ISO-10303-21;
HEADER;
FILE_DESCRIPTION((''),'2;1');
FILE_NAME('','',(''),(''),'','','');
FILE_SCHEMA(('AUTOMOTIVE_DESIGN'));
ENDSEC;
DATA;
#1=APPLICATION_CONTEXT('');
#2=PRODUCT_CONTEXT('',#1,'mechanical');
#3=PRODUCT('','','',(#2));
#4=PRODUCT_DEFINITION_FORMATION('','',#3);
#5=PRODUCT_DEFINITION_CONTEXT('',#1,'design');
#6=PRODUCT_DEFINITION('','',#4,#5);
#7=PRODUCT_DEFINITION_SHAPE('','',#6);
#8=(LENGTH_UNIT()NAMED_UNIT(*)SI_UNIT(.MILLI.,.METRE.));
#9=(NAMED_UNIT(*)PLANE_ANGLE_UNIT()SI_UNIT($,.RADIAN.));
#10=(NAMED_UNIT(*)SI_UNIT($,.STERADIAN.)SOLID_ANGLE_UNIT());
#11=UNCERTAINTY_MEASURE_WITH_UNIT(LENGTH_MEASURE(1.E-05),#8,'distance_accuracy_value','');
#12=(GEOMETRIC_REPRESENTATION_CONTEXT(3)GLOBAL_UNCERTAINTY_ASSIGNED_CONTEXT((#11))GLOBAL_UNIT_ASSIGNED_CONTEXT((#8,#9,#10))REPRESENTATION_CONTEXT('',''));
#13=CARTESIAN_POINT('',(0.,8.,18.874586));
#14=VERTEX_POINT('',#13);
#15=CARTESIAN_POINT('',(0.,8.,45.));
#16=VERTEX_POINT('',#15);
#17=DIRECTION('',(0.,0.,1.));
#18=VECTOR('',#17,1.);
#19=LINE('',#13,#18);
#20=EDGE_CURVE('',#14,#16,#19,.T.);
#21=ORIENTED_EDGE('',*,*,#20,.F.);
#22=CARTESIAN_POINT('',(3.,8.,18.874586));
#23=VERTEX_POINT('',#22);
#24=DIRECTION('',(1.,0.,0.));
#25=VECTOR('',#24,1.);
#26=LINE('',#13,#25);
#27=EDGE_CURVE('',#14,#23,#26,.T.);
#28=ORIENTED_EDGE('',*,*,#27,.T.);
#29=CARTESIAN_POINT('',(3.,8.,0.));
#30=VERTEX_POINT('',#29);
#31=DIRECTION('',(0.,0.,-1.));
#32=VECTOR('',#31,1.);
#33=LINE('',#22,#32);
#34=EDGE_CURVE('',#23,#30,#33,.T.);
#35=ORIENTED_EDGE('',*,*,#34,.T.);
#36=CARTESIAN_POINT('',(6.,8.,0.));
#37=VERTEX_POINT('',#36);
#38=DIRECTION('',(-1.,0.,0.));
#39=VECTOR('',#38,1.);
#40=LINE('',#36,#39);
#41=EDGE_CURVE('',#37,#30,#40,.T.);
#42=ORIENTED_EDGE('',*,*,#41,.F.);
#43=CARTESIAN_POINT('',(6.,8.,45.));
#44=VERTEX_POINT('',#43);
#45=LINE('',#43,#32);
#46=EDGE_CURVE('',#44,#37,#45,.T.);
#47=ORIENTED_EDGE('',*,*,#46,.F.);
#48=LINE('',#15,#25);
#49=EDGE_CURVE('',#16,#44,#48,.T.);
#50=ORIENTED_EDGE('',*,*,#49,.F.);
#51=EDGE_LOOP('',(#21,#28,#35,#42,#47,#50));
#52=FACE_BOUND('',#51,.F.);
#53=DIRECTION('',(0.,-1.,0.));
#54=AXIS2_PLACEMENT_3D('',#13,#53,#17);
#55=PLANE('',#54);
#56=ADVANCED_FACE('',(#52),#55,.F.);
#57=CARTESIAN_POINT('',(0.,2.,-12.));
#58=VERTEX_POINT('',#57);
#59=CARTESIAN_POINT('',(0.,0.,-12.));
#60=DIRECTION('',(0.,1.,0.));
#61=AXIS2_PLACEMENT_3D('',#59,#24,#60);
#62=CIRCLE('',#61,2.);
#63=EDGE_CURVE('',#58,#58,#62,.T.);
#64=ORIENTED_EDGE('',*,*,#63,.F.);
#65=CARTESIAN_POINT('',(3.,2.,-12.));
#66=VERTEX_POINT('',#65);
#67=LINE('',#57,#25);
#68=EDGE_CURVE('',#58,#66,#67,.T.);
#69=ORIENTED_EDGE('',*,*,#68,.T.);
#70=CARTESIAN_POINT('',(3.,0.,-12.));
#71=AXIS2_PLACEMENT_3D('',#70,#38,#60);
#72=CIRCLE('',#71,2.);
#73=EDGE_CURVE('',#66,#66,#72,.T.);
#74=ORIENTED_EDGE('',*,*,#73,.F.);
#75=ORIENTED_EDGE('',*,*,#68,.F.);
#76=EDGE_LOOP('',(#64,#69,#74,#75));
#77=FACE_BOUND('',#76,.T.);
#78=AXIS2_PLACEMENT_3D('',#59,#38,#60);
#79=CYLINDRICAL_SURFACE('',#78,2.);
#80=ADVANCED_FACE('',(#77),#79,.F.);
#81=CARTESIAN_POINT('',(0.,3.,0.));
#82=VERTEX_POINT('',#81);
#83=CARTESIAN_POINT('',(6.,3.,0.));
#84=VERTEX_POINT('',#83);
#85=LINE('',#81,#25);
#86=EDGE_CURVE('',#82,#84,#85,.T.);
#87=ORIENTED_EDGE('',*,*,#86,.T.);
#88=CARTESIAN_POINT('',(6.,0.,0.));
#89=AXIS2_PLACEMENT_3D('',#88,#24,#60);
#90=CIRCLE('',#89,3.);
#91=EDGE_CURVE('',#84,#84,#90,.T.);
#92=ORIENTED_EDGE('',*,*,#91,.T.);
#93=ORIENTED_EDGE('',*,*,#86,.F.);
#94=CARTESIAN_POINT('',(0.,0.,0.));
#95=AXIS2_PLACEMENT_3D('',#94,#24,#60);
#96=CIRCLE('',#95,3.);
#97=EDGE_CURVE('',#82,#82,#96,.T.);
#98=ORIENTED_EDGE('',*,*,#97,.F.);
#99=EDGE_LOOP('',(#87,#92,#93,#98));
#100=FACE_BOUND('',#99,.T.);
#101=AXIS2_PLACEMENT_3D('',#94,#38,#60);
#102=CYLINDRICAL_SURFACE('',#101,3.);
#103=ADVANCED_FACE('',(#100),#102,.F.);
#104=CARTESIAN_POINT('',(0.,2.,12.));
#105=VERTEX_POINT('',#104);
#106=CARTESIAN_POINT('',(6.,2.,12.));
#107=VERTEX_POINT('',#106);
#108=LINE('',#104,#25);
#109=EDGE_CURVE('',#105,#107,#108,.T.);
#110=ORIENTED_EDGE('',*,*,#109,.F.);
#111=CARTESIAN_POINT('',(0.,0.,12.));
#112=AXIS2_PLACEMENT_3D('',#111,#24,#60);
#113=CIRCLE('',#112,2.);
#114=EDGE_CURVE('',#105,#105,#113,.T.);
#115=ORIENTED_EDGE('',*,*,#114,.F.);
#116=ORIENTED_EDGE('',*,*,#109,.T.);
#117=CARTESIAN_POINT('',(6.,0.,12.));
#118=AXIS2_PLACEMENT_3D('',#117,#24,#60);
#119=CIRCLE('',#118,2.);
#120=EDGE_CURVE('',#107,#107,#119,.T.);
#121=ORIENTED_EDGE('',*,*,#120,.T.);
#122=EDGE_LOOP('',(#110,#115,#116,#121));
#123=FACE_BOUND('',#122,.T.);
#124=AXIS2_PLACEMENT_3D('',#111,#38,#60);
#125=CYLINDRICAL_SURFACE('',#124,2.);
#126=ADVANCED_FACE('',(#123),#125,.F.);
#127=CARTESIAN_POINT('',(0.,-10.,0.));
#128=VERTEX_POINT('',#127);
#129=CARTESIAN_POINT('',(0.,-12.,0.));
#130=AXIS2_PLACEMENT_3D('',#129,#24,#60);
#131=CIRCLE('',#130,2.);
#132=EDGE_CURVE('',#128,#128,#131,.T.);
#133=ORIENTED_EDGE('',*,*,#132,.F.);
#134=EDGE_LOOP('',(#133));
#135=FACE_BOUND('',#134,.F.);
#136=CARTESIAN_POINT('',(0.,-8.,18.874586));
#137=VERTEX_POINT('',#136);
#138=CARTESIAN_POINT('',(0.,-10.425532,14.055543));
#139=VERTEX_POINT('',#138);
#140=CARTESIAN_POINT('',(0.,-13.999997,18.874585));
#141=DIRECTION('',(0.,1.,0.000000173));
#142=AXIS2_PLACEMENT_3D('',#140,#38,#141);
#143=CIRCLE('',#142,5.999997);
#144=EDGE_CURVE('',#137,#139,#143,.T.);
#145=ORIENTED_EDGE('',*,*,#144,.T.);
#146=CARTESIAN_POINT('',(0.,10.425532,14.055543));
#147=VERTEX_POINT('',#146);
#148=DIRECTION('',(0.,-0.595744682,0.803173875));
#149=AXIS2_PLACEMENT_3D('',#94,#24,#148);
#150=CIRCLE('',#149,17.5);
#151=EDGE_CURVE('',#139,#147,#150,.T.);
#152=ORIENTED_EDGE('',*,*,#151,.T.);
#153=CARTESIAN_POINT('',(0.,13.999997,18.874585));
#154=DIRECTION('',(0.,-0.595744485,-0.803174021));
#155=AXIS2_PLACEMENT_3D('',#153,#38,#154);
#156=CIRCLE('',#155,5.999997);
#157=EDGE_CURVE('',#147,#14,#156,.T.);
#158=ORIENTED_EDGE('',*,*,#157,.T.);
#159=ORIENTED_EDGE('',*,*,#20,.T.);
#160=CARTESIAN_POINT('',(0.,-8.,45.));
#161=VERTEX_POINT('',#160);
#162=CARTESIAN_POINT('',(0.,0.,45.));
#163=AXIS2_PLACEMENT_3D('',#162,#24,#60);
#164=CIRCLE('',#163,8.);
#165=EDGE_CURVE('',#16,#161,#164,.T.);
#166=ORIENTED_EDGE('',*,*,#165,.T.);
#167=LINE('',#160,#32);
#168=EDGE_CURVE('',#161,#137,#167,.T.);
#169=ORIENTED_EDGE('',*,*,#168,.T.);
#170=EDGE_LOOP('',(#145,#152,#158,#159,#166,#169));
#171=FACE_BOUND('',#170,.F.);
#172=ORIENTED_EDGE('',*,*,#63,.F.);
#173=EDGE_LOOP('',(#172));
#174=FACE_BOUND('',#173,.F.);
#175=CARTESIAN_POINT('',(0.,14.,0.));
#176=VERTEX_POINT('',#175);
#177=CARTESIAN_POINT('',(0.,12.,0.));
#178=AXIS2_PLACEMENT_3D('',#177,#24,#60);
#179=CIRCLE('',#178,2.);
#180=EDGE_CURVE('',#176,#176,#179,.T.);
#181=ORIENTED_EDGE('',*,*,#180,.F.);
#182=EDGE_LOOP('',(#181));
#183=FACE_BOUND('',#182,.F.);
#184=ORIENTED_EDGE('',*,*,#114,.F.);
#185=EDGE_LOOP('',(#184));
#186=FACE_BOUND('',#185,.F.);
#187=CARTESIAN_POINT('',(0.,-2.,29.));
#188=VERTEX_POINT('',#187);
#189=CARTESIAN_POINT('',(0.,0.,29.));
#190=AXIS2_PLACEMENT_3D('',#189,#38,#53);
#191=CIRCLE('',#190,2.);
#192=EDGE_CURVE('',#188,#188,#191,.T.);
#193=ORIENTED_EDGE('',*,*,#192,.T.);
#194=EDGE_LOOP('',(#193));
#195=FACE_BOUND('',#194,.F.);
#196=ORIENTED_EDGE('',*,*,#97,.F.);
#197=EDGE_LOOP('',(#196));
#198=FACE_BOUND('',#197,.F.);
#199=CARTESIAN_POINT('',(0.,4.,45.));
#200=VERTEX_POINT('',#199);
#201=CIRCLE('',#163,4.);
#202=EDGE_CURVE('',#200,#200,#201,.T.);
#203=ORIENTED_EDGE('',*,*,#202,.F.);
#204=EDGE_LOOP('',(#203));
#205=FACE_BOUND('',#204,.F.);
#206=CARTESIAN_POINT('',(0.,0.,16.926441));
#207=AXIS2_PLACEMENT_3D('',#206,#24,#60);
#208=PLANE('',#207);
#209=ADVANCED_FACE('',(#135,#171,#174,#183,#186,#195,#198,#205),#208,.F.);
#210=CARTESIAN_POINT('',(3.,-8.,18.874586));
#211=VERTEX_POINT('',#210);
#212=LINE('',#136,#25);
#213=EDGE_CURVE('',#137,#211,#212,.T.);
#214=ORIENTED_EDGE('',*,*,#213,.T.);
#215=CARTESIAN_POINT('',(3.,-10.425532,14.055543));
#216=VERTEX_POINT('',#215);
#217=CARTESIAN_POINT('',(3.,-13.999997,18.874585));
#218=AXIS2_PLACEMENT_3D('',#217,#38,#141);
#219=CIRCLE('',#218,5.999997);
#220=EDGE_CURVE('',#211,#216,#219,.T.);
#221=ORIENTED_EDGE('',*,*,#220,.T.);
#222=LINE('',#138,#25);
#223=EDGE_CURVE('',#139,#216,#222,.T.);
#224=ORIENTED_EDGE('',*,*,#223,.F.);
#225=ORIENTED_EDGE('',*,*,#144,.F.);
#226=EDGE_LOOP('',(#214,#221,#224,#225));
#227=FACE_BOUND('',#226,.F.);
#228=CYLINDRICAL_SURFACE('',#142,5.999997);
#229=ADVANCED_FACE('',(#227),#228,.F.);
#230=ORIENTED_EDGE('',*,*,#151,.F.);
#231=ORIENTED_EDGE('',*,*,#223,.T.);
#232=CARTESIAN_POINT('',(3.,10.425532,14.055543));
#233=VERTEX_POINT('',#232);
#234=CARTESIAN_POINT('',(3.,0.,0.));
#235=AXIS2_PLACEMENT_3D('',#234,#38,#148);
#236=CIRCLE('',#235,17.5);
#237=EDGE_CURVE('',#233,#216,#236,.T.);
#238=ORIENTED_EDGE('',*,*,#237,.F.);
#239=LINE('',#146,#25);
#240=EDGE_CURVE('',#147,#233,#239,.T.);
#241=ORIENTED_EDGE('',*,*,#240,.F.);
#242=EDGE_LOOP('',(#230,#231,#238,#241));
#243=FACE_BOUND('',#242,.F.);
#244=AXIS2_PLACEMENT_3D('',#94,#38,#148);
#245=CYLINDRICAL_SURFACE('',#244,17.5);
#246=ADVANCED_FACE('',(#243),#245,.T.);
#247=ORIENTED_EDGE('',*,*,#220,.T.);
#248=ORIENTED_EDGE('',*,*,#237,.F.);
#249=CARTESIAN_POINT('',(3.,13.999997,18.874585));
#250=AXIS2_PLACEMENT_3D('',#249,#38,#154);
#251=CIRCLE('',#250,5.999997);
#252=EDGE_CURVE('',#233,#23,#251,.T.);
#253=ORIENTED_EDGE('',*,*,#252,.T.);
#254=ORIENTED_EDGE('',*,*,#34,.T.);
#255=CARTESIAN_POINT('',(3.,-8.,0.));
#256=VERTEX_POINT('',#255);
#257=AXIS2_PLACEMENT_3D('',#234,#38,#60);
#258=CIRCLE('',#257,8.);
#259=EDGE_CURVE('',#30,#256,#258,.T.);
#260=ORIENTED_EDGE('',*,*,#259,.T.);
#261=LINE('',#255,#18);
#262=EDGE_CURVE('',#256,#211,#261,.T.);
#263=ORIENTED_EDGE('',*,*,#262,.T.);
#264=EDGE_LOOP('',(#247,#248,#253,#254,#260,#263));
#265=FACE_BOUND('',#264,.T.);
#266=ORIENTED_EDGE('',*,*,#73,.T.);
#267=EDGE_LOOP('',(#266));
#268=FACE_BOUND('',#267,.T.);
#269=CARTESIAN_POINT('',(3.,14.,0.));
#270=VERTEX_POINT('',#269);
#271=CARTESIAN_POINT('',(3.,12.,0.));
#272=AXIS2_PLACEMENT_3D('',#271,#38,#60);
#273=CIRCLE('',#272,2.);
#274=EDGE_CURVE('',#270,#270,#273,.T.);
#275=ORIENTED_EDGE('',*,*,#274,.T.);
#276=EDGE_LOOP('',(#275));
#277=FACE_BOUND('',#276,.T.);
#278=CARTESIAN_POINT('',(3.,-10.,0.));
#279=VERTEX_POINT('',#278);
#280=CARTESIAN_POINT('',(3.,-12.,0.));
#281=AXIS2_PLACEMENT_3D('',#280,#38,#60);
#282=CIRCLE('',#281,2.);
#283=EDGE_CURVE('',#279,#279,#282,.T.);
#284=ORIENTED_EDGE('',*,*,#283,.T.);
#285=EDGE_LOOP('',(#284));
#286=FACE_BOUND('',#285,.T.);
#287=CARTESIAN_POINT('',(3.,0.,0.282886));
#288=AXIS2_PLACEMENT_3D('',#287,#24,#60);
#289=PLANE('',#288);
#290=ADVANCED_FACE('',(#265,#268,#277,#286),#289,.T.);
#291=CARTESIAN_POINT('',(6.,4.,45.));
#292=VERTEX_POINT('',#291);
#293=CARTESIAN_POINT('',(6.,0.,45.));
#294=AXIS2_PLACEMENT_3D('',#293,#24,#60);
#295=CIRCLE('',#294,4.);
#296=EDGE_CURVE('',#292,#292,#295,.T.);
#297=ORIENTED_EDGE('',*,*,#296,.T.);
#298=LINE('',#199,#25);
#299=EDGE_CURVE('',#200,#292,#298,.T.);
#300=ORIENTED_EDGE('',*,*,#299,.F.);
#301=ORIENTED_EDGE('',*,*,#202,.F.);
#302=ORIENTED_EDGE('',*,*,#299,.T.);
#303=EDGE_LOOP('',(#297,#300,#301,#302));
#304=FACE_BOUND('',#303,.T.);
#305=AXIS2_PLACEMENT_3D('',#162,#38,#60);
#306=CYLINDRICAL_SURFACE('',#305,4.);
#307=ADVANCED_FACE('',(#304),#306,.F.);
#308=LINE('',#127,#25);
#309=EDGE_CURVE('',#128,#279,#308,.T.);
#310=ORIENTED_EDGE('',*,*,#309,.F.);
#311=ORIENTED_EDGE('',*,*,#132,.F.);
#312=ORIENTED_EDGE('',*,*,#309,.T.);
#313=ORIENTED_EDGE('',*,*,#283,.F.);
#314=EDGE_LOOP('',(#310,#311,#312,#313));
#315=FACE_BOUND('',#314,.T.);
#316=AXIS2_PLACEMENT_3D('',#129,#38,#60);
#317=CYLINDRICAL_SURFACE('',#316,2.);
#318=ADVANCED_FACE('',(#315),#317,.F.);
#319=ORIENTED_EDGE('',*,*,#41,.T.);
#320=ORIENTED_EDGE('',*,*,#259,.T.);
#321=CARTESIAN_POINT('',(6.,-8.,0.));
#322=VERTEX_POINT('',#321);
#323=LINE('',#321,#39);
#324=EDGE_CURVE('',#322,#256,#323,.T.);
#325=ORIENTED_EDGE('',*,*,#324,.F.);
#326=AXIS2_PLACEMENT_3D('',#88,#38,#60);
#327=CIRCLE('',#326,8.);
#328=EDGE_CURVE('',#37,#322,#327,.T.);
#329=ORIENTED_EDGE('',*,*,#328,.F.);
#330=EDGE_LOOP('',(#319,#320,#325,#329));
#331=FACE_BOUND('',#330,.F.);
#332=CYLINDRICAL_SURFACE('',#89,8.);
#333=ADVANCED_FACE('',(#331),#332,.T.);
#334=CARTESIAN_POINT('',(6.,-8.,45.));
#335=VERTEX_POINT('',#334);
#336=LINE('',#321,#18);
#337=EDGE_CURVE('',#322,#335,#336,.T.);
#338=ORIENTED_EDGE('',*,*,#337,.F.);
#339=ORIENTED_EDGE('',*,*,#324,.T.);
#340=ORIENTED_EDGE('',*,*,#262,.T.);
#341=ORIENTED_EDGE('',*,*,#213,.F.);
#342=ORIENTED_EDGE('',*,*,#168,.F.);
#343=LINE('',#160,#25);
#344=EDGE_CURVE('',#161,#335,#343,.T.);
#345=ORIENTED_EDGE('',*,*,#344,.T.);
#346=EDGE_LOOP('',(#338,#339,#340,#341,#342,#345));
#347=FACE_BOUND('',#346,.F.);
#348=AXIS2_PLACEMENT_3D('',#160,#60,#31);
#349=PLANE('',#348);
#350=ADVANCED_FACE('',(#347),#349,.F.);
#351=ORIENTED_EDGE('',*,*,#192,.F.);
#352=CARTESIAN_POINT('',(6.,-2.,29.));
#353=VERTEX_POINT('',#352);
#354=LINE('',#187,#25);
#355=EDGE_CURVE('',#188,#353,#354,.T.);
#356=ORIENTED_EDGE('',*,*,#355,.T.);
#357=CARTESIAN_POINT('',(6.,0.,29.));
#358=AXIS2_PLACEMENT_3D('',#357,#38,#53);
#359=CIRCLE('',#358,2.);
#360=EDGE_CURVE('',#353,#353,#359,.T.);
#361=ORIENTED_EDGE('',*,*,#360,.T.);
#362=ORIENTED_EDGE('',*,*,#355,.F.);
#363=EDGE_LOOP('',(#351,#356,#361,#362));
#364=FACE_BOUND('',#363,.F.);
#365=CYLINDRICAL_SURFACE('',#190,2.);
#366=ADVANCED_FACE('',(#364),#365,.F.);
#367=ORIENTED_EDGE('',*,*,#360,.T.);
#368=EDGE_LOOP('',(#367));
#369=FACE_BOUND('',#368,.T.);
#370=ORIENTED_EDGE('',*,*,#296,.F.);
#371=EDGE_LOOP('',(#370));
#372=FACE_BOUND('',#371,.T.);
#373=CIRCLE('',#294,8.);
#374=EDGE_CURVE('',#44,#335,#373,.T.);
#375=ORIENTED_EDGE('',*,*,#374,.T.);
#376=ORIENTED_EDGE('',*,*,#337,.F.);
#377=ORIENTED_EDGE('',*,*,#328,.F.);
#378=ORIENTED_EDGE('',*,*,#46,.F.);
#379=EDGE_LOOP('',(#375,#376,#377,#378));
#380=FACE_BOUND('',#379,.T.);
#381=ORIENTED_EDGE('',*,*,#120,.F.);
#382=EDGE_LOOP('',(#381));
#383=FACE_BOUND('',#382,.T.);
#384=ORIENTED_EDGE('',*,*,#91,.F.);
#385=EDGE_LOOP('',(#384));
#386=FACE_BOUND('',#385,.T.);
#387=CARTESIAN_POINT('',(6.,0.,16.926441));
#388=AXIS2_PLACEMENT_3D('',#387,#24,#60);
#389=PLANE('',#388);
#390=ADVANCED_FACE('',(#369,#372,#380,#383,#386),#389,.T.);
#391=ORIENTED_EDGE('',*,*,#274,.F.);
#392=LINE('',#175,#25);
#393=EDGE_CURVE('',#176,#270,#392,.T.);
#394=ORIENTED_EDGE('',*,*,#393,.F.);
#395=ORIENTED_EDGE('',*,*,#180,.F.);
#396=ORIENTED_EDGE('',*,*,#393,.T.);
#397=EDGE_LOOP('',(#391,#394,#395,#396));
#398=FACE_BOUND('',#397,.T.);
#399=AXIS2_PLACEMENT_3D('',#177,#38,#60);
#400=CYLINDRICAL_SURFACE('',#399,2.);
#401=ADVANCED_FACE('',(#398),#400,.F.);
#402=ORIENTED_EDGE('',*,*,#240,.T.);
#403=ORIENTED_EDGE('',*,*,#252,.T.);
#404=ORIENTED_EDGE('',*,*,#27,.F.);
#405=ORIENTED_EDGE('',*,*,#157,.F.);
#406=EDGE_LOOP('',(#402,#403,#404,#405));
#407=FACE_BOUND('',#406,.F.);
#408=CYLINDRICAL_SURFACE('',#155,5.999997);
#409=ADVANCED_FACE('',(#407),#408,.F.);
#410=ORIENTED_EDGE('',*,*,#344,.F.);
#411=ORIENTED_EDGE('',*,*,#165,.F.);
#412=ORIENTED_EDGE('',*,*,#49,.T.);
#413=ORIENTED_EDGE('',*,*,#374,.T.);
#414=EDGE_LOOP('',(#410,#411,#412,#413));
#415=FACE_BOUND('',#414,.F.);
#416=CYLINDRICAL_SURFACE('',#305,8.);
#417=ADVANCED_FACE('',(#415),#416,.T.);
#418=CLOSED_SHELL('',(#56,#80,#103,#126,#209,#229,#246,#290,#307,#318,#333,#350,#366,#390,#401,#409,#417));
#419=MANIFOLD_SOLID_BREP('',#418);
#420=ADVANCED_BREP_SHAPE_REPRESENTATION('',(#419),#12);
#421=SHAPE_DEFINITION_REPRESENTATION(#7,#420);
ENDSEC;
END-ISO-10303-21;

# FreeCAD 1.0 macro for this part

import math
import FreeCAD as App
import Part
import Sketcher
from FreeCAD import Vector
Q = App.Units.Quantity

doc = App.newDocument("Part")
params = doc.addObject("Spreadsheet::Sheet", "Params")
for row, (alias, value) in enumerate([
    ("sketch1_diameter", "4 mm"),
    ("sketch1_diameter2", "6 mm"),
    ("sketch1_diameter3", "8 mm"),
    ("sketch1_radius", "8 mm"),
    ("sketch1_radius2", "17.5 mm"),
    ("pad1_length", "6 mm"),
    ("sketch2_diameter", "4 mm"),
    ("sketch3_radius", "8 mm"),
    ("sketch3_radius2", "20.5 mm"),
    ("pocket2_length", "3 mm"),
], start=1):
    params.set(f"A{row}", alias)
    params.set(f"B{row}", "=" + value)
    params.setAlias(f"B{row}", alias)

body = doc.addObject("PartDesign::Body", "Body")

# Sketch on YZ plane
sketch1 = body.newObject("Sketcher::SketchObject", "Sketch")
sketch1.AttachmentSupport = (doc.getObject("YZ_Plane"), [""])
sketch1.MapMode = "FlatFace"
sketch1.addGeometry(Part.ArcOfCircle(Part.Circle(Vector(-14, 18.9, 0), Vector(0, 0, 1), 6), math.radians(-53), math.radians(0)), False)
sketch1.addGeometry(Part.ArcOfCircle(Part.Circle(Vector(0, 0, 0), Vector(0, 0, 1), 17.5), math.radians(127), math.radians(413)), False)
sketch1.addGeometry(Part.ArcOfCircle(Part.Circle(Vector(14, 18.9, 0), Vector(0, 0, 1), 6), math.radians(180), math.radians(233)), False)
sketch1.addGeometry(Part.LineSegment(Vector(8, 18.9, 0), Vector(8, 45, 0)), False)
sketch1.addGeometry(Part.ArcOfCircle(Part.Circle(Vector(0, 45, 0), Vector(0, 0, 1), 8), math.radians(0), math.radians(180)), False)
sketch1.addGeometry(Part.LineSegment(Vector(-8, 45, 0), Vector(-8, 18.9, 0)), False)
sketch1.addGeometry(Part.Circle(Vector(-12, 0, 0), Vector(0, 0, 1), 2), False)
sketch1.addGeometry(Part.Circle(Vector(0, -12, 0), Vector(0, 0, 1), 2), False)
sketch1.addGeometry(Part.Circle(Vector(0, 0, 0), Vector(0, 0, 1), 3), False)
sketch1.addGeometry(Part.Circle(Vector(12, 0, 0), Vector(0, 0, 1), 2), False)
sketch1.addGeometry(Part.Circle(Vector(0, 12, 0), Vector(0, 0, 1), 2), False)
sketch1.addGeometry(Part.Circle(Vector(0, 45, 0), Vector(0, 0, 1), 4), False)
sketch1.addConstraint(Sketcher.Constraint("Tangent", 0, 1, 1, 1))
sketch1.addConstraint(Sketcher.Constraint("Tangent", 1, 2, 2, 2))
sketch1.addConstraint(Sketcher.Constraint("Tangent", 2, 1, 3, 1))
sketch1.addConstraint(Sketcher.Constraint("Tangent", 3, 2, 4, 1))
sketch1.addConstraint(Sketcher.Constraint("Tangent", 4, 2, 5, 1))
sketch1.addConstraint(Sketcher.Constraint("Tangent", 5, 2, 0, 2))
sketch1.addConstraint(Sketcher.Constraint("Vertical", 3))
sketch1.addConstraint(Sketcher.Constraint("Vertical", 5))
sketch1.addConstraint(Sketcher.Constraint("Coincident", 1, 3, -1, 1))
sketch1.addConstraint(Sketcher.Constraint("Coincident", 8, 3, -1, 1))
sketch1.addConstraint(Sketcher.Constraint("Coincident", 11, 3, 4, 3))
sketch1.addConstraint(Sketcher.Constraint("Equal", 0, 2))
sketch1.addConstraint(Sketcher.Constraint("Equal", 6, 7))
sketch1.addConstraint(Sketcher.Constraint("Equal", 7, 9))
sketch1.addConstraint(Sketcher.Constraint("Equal", 9, 10))
sketch1.addConstraint(Sketcher.Constraint("Symmetric", 6, 3, 9, 3, -1, 1))
sketch1.addConstraint(Sketcher.Constraint("Symmetric", 7, 3, 10, 3, -1, 1))
sketch1.addConstraint(Sketcher.Constraint("PointOnObject", 4, 3, -2))
sketch1.addConstraint(Sketcher.Constraint("PointOnObject", 6, 3, -1))
sketch1.addConstraint(Sketcher.Constraint("PointOnObject", 7, 3, -2))
sketch1.addConstraint(Sketcher.Constraint("Diameter", 6, Q("4 mm")))
sketch1.addConstraint(Sketcher.Constraint("Diameter", 8, Q("6 mm")))
sketch1.addConstraint(Sketcher.Constraint("Diameter", 11, Q("8 mm")))
sketch1.addConstraint(Sketcher.Constraint("Radius", 4, Q("8 mm")))
sketch1.addConstraint(Sketcher.Constraint("Radius", 1, Q("17.5 mm")))
sketch1.addConstraint(Sketcher.Constraint("DistanceY", -1, 1, 4, 3, Q("45 mm")))
sketch1.addConstraint(Sketcher.Constraint("DistanceX", 6, 3, -1, 1, Q("12 mm")))
sketch1.addConstraint(Sketcher.Constraint("DistanceY", 7, 3, -1, 1, Q("12 mm")))
sketch1.addConstraint(Sketcher.Constraint("Radius", 0, Q("5.999997 mm")))
sketch1.setExpression("Constraints[20]", "Params.sketch1_diameter")
sketch1.setExpression("Constraints[21]", "Params.sketch1_diameter2")
sketch1.setExpression("Constraints[22]", "Params.sketch1_diameter3")
sketch1.setExpression("Constraints[23]", "Params.sketch1_radius")
sketch1.setExpression("Constraints[24]", "Params.sketch1_radius2")
pad1 = body.newObject("PartDesign::Pad", "Pad")
pad1.Profile = sketch1
pad1.setExpression("Length", "Params.pad1_length")

# Sketch on YZ plane
sketch2 = body.newObject("Sketcher::SketchObject", "Sketch001")
sketch2.AttachmentSupport = (doc.getObject("YZ_Plane"), [""])
sketch2.MapMode = "FlatFace"
sketch2.addGeometry(Part.Circle(Vector(0, 29, 0), Vector(0, 0, 1), 2), False)
sketch2.addConstraint(Sketcher.Constraint("PointOnObject", 0, 3, -2))
sketch2.addConstraint(Sketcher.Constraint("Diameter", 0, Q("4 mm")))
sketch2.addConstraint(Sketcher.Constraint("DistanceY", -1, 1, 0, 3, Q("29 mm")))
sketch2.setExpression("Constraints[1]", "Params.sketch2_diameter")
pocket1 = body.newObject("PartDesign::Pocket", "Pocket")
pocket1.Profile = sketch2
pocket1.Type = "ThroughAll"
pocket1.Reversed = True

# Sketch on YZ plane
sketch3 = body.newObject("Sketcher::SketchObject", "Sketch002")
sketch3.AttachmentSupport = (doc.getObject("YZ_Plane"), [""])
sketch3.MapMode = "FlatFace"
sketch3.AttachmentOffset = App.Placement(Vector(0, 0, 6), App.Rotation())
sketch3.addGeometry(Part.LineSegment(Vector(-8, 0, 0), Vector(-8, 19, 0)), False)
sketch3.addGeometry(Part.ArcOfCircle(Part.Circle(Vector(0, 0, 0), Vector(0, 0, 1), 20), math.radians(113), math.radians(427)), False)
sketch3.addGeometry(Part.LineSegment(Vector(8, 19, 0), Vector(8, 0, 0)), False)
sketch3.addGeometry(Part.ArcOfCircle(Part.Circle(Vector(0, 0, 0), Vector(0, 0, 1), 8), math.radians(180), math.radians(360)), False)
sketch3.addConstraint(Sketcher.Constraint("Coincident", 0, 2, 1, 1))
sketch3.addConstraint(Sketcher.Constraint("Coincident", 1, 2, 2, 1))
sketch3.addConstraint(Sketcher.Constraint("Tangent", 2, 2, 3, 2))
sketch3.addConstraint(Sketcher.Constraint("Tangent", 3, 1, 0, 1))
sketch3.addConstraint(Sketcher.Constraint("Vertical", 0))
sketch3.addConstraint(Sketcher.Constraint("Vertical", 2))
sketch3.addConstraint(Sketcher.Constraint("Coincident", 1, 3, -1, 1))
sketch3.addConstraint(Sketcher.Constraint("Coincident", 3, 3, -1, 1))
sketch3.addConstraint(Sketcher.Constraint("Radius", 3, Q("8 mm")))
sketch3.addConstraint(Sketcher.Constraint("Radius", 1, Q("20.5 mm")))
sketch3.setExpression("Constraints[8]", "Params.sketch3_radius")
sketch3.setExpression("Constraints[9]", "Params.sketch3_radius2")
pocket2 = body.newObject("PartDesign::Pocket", "Pocket001")
pocket2.Profile = sketch3
pocket2.setExpression("Length", "Params.pocket2_length")

doc.recompute()
